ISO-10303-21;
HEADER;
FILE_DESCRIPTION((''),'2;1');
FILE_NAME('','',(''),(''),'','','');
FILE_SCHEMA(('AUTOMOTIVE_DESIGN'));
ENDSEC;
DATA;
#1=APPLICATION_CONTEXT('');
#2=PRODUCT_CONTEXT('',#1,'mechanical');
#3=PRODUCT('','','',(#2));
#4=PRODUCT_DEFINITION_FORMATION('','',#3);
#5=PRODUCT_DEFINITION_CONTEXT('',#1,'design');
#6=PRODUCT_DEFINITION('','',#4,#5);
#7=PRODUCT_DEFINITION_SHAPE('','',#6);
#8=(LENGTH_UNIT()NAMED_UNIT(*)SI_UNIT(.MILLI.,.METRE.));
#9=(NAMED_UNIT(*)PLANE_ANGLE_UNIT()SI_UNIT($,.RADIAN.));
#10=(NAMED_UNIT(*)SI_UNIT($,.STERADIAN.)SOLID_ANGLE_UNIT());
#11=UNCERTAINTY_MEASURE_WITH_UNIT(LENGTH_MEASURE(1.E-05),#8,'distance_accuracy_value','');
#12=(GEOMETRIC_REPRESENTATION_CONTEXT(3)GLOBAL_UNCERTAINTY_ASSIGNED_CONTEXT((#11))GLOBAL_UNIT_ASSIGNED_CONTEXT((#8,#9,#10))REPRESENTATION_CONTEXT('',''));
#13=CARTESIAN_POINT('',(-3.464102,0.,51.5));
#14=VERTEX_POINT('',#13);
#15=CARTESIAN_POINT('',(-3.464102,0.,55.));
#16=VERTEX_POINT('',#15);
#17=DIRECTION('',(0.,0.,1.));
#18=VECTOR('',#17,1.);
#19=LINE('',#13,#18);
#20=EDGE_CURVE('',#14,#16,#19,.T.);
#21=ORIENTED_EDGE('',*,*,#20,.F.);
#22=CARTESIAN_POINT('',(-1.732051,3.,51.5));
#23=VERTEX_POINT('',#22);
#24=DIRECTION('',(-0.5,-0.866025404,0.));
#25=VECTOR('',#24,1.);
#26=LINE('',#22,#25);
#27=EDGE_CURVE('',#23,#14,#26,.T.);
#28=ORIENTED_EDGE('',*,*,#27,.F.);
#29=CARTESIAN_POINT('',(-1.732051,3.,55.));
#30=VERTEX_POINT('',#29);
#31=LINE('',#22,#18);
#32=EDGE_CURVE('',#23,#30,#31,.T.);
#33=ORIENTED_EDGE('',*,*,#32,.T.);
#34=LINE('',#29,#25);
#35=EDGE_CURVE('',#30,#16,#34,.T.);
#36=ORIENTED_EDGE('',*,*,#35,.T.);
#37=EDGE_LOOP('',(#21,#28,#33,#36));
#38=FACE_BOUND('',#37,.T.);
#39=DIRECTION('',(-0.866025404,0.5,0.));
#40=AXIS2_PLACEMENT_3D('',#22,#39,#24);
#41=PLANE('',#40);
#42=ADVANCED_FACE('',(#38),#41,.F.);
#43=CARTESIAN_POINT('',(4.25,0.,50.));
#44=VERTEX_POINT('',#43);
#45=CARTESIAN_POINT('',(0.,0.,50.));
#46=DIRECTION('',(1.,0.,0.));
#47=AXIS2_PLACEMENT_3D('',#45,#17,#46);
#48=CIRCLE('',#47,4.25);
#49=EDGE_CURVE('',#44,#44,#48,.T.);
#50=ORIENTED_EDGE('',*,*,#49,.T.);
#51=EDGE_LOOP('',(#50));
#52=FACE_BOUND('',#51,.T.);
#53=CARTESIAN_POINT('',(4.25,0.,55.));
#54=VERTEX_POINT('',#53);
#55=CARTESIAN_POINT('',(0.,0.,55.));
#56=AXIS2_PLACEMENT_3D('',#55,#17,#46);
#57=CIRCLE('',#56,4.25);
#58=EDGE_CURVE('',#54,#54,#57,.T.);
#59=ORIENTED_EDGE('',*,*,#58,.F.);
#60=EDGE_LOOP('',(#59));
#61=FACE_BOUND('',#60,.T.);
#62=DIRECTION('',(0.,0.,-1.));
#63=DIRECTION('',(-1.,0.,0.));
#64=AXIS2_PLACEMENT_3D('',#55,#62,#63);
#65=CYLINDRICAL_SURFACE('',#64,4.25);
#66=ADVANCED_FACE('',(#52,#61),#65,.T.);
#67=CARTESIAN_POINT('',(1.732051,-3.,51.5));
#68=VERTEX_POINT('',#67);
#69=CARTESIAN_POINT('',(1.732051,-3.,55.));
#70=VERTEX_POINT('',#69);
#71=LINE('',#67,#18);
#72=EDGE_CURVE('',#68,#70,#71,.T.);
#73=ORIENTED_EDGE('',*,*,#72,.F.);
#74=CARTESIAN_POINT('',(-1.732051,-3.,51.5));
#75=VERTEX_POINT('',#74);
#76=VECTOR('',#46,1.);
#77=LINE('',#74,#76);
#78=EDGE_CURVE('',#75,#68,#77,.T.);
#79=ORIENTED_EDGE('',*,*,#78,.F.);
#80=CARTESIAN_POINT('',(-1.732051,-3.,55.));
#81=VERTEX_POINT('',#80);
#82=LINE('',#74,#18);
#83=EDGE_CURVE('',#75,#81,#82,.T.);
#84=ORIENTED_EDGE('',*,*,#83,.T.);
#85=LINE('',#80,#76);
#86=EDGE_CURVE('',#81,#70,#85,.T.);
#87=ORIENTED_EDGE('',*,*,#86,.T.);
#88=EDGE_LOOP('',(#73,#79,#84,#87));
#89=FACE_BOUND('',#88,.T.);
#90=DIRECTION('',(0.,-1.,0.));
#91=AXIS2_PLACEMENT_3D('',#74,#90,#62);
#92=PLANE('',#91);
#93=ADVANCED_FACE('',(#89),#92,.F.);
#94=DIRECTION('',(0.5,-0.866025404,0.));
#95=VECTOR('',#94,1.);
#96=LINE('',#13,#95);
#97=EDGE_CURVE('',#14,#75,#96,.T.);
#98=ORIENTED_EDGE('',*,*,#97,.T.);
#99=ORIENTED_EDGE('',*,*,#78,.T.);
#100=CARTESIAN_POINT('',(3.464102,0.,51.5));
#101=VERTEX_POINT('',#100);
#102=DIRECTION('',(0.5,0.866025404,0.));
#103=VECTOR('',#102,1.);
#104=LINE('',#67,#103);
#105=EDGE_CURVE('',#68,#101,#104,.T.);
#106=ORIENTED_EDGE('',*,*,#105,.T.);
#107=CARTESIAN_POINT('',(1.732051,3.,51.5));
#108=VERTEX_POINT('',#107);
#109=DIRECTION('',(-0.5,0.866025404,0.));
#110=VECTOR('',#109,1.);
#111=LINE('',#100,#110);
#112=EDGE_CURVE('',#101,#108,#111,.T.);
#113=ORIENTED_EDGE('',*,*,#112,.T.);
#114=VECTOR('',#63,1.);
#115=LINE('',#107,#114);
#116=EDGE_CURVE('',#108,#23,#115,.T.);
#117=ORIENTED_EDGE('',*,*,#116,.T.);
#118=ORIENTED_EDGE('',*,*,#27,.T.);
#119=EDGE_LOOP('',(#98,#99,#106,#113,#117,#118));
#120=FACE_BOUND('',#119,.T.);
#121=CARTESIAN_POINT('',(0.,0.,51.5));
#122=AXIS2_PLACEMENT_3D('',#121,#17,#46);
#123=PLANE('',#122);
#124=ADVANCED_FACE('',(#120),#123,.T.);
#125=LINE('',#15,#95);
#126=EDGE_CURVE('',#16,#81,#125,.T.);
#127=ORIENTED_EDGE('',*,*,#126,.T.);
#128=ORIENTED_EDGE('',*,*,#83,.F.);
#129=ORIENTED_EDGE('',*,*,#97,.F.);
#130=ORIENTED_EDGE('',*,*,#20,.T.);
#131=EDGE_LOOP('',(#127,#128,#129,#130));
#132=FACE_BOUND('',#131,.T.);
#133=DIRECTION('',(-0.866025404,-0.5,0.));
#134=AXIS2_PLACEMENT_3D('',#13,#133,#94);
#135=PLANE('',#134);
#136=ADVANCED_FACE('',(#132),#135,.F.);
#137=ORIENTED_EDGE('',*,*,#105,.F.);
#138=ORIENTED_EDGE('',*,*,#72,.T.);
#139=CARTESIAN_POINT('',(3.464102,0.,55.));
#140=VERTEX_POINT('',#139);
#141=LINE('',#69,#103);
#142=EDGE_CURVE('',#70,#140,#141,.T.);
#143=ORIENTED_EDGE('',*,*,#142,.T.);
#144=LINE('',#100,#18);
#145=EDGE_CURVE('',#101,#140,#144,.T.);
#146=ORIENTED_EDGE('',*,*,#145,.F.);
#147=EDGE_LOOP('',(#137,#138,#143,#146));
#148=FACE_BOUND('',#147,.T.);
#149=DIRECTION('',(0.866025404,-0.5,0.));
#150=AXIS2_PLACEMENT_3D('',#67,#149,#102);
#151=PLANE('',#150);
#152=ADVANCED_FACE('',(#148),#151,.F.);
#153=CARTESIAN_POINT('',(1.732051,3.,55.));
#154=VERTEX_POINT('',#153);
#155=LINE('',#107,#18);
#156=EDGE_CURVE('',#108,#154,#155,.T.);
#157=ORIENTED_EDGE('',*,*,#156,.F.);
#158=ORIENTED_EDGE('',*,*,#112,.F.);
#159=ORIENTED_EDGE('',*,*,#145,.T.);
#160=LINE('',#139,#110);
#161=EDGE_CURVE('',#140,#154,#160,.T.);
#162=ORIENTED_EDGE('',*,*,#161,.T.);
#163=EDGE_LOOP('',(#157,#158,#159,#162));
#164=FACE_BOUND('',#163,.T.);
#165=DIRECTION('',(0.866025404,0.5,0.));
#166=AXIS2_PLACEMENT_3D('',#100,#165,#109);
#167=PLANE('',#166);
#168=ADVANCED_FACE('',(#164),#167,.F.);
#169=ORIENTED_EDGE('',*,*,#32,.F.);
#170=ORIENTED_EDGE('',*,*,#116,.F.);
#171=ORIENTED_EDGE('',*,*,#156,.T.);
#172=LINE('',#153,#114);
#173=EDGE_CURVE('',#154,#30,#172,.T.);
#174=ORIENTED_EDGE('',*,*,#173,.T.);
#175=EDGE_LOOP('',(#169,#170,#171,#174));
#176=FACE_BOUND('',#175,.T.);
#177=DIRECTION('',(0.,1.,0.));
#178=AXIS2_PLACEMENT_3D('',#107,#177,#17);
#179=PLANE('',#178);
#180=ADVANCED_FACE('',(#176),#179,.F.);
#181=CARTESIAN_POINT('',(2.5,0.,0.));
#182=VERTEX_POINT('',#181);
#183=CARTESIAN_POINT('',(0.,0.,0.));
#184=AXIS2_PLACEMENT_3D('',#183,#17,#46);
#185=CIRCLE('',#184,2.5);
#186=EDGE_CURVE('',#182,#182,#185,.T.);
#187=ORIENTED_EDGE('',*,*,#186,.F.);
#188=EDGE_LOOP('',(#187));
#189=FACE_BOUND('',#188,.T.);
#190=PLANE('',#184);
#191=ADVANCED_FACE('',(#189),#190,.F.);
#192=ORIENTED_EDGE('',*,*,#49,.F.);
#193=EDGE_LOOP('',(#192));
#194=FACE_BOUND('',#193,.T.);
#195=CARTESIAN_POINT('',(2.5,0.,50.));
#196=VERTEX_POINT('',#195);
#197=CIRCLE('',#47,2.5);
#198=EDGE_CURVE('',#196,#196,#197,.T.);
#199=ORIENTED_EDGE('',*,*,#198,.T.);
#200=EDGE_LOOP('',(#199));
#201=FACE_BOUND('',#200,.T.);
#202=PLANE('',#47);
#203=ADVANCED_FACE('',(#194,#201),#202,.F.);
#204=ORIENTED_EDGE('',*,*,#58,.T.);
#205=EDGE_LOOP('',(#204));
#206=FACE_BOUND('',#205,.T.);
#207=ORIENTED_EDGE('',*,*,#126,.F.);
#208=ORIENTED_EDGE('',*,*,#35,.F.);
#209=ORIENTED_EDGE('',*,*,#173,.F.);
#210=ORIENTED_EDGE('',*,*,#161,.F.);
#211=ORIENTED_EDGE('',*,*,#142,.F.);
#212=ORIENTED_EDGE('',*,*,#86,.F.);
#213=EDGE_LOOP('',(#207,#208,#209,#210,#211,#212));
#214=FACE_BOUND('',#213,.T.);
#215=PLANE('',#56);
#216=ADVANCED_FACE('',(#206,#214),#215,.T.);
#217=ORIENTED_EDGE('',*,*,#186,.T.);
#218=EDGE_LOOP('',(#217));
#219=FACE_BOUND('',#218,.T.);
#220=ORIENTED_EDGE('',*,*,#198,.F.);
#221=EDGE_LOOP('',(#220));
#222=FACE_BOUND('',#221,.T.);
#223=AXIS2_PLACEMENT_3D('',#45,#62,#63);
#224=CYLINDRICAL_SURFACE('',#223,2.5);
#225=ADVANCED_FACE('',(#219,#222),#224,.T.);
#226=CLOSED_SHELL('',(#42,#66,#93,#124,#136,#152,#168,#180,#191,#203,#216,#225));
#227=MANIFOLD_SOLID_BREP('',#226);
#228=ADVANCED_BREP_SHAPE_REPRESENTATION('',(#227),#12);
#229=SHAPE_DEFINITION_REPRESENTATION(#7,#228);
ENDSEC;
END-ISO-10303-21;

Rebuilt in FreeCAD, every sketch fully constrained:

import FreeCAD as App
import Part
import Sketcher
from FreeCAD import Vector
Q = App.Units.Quantity


def add_polygon(sketch, points):
    """Adds a closed chain of lines whose ends are joined by coincident constraints."""
    first, n = sketch.GeometryCount, len(points)
    for a, b in zip(points, points[1:] + points[:1]):
        sketch.addGeometry(Part.LineSegment(App.Vector(*a, 0), App.Vector(*b, 0)), False)
    for i in range(n):
        sketch.addConstraint(Sketcher.Constraint("Coincident", first + i, 2, first + (i + 1) % n, 1))

doc = App.newDocument("Part")
body = doc.addObject("PartDesign::Body", "Body")

# Sketch on XY plane
sketch1 = body.newObject("Sketcher::SketchObject", "Sketch")
sketch1.AttachmentSupport = (doc.getObject("XY_Plane"), [""])
sketch1.MapMode = "FlatFace"
sketch1.addGeometry(Part.Circle(Vector(0, 0, 0), Vector(0, 0, 1), 2.5), False)
sketch1.addConstraint([
    Sketcher.Constraint("Coincident", 0, 3, -1, 1),
    Sketcher.Constraint("Diameter", 0, Q("5 mm")),
])
pad1 = body.newObject("PartDesign::Pad", "Pad")
pad1.Profile = sketch1
pad1.Length = 50

# Sketch on XY plane
sketch2 = body.newObject("Sketcher::SketchObject", "Sketch001")
sketch2.AttachmentSupport = (doc.getObject("XY_Plane"), [""])
sketch2.MapMode = "FlatFace"
sketch2.AttachmentOffset = App.Placement(Vector(0, 0, 50), App.Rotation())
sketch2.addGeometry(Part.Circle(Vector(0, 0, 0), Vector(0, 0, 1), 4.25), False)
sketch2.addConstraint([
    Sketcher.Constraint("Coincident", 0, 3, -1, 1),
    Sketcher.Constraint("Diameter", 0, Q("8.5 mm")),
])
pad2 = body.newObject("PartDesign::Pad", "Pad001")
pad2.Profile = sketch2
pad2.Length = 5

# Sketch on XY plane
sketch3 = body.newObject("Sketcher::SketchObject", "Sketch002")
sketch3.AttachmentSupport = (doc.getObject("XY_Plane"), [""])
sketch3.MapMode = "FlatFace"
sketch3.AttachmentOffset = App.Placement(Vector(0, 0, 55), App.Rotation())
add_polygon(sketch3, [(3.464102, 0), (1.732051, 3), (-1.732051, 3), (-3.464102, 0), (-1.732051, -3), (1.732051, -3)])  # lines 0-5
sketch3.addConstraint([
    Sketcher.Constraint("Horizontal", 1),
    Sketcher.Constraint("Horizontal", 4),
    Sketcher.Constraint("Symmetric", 0, 2, 3, 2, -1, 1),
    Sketcher.Constraint("Symmetric", 2, 2, 5, 2, -1, 1),
    Sketcher.Constraint("PointOnObject", 2, 2, -1),
    Sketcher.Constraint("Parallel", 2, 5),
    Sketcher.Constraint("Vertical", 1, 2, 3, 2),
    Sketcher.Constraint("Angle", 0, Q("120 deg")),
    Sketcher.Constraint("DistanceY", -1, 1, 0, 2, Q("3 mm")),
    Sketcher.Constraint("DistanceX", 1, 2, 1, 1, Q("3.464102 mm")),
])
pocket1 = body.newObject("PartDesign::Pocket", "Pocket")
pocket1.Profile = sketch3
pocket1.Length = 3.5

doc.recompute()
